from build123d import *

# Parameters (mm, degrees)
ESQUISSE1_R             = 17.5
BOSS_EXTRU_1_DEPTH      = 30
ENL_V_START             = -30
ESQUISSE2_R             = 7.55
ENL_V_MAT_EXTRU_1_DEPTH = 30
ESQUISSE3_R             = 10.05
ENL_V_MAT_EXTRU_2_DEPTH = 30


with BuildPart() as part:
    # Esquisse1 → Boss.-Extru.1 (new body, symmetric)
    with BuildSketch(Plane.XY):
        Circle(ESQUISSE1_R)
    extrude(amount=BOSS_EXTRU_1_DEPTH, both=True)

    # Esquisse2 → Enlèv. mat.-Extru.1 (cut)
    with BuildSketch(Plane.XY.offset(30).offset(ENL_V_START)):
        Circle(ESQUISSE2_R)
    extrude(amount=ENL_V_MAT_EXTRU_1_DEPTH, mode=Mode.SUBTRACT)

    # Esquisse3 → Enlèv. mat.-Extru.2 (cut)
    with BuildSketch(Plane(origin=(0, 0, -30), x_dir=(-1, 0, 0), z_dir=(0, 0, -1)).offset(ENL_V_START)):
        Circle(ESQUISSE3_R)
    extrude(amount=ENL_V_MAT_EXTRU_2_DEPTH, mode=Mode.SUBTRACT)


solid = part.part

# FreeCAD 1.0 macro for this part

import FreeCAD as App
import Part
import Sketcher

V = App.Vector
Q = App.Units.Quantity

doc = App.newDocument("Part")
body = doc.addObject("PartDesign::Body", "Body")

sketch1 = body.newObject("Sketcher::SketchObject", "Sketch")
sketch1.AttachmentSupport = (doc.getObject("XY_Plane"), [""])
sketch1.MapMode = "FlatFace"
sketch1.addGeometry(Part.Circle(V(0, 0, 0), V(0, 0, 1), 17.5), False)
sketch1.addConstraint([
    Sketcher.Constraint("Coincident", 0, 3, -1, 1),
    Sketcher.Constraint("Diameter", 0, Q("35 mm")),
])
pad1 = body.newObject("PartDesign::Pad", "Pad")
pad1.Profile = sketch1
pad1.Length = 60
pad1.Midplane = True

sketch2 = body.newObject("Sketcher::SketchObject", "Sketch001")
sketch2.AttachmentSupport = (doc.getObject("XY_Plane"), [""])
sketch2.MapMode = "FlatFace"
sketch2.addGeometry(Part.Circle(V(0, 0, 0), V(0, 0, 1), 7.55), False)
sketch2.addConstraint([
    Sketcher.Constraint("Coincident", 0, 3, -1, 1),
    Sketcher.Constraint("Diameter", 0, Q("15.1 mm")),
])
pocket1 = body.newObject("PartDesign::Pocket", "Pocket")
pocket1.Profile = sketch2
pocket1.Length = 30
pocket1.Reversed = True

sketch3 = body.newObject("Sketcher::SketchObject", "Sketch002")
sketch3.AttachmentSupport = (doc.getObject("XY_Plane"), [""])
sketch3.MapMode = "FlatFace"
sketch3.addGeometry(Part.Circle(V(0, 0, 0), V(0, 0, 1), 10.05), False)
sketch3.addConstraint([
    Sketcher.Constraint("Coincident", 0, 3, -1, 1),
    Sketcher.Constraint("Diameter", 0, Q("20.1 mm")),
])
pocket2 = body.newObject("PartDesign::Pocket", "Pocket001")
pocket2.Profile = sketch3
pocket2.Length = 30

doc.recompute()
